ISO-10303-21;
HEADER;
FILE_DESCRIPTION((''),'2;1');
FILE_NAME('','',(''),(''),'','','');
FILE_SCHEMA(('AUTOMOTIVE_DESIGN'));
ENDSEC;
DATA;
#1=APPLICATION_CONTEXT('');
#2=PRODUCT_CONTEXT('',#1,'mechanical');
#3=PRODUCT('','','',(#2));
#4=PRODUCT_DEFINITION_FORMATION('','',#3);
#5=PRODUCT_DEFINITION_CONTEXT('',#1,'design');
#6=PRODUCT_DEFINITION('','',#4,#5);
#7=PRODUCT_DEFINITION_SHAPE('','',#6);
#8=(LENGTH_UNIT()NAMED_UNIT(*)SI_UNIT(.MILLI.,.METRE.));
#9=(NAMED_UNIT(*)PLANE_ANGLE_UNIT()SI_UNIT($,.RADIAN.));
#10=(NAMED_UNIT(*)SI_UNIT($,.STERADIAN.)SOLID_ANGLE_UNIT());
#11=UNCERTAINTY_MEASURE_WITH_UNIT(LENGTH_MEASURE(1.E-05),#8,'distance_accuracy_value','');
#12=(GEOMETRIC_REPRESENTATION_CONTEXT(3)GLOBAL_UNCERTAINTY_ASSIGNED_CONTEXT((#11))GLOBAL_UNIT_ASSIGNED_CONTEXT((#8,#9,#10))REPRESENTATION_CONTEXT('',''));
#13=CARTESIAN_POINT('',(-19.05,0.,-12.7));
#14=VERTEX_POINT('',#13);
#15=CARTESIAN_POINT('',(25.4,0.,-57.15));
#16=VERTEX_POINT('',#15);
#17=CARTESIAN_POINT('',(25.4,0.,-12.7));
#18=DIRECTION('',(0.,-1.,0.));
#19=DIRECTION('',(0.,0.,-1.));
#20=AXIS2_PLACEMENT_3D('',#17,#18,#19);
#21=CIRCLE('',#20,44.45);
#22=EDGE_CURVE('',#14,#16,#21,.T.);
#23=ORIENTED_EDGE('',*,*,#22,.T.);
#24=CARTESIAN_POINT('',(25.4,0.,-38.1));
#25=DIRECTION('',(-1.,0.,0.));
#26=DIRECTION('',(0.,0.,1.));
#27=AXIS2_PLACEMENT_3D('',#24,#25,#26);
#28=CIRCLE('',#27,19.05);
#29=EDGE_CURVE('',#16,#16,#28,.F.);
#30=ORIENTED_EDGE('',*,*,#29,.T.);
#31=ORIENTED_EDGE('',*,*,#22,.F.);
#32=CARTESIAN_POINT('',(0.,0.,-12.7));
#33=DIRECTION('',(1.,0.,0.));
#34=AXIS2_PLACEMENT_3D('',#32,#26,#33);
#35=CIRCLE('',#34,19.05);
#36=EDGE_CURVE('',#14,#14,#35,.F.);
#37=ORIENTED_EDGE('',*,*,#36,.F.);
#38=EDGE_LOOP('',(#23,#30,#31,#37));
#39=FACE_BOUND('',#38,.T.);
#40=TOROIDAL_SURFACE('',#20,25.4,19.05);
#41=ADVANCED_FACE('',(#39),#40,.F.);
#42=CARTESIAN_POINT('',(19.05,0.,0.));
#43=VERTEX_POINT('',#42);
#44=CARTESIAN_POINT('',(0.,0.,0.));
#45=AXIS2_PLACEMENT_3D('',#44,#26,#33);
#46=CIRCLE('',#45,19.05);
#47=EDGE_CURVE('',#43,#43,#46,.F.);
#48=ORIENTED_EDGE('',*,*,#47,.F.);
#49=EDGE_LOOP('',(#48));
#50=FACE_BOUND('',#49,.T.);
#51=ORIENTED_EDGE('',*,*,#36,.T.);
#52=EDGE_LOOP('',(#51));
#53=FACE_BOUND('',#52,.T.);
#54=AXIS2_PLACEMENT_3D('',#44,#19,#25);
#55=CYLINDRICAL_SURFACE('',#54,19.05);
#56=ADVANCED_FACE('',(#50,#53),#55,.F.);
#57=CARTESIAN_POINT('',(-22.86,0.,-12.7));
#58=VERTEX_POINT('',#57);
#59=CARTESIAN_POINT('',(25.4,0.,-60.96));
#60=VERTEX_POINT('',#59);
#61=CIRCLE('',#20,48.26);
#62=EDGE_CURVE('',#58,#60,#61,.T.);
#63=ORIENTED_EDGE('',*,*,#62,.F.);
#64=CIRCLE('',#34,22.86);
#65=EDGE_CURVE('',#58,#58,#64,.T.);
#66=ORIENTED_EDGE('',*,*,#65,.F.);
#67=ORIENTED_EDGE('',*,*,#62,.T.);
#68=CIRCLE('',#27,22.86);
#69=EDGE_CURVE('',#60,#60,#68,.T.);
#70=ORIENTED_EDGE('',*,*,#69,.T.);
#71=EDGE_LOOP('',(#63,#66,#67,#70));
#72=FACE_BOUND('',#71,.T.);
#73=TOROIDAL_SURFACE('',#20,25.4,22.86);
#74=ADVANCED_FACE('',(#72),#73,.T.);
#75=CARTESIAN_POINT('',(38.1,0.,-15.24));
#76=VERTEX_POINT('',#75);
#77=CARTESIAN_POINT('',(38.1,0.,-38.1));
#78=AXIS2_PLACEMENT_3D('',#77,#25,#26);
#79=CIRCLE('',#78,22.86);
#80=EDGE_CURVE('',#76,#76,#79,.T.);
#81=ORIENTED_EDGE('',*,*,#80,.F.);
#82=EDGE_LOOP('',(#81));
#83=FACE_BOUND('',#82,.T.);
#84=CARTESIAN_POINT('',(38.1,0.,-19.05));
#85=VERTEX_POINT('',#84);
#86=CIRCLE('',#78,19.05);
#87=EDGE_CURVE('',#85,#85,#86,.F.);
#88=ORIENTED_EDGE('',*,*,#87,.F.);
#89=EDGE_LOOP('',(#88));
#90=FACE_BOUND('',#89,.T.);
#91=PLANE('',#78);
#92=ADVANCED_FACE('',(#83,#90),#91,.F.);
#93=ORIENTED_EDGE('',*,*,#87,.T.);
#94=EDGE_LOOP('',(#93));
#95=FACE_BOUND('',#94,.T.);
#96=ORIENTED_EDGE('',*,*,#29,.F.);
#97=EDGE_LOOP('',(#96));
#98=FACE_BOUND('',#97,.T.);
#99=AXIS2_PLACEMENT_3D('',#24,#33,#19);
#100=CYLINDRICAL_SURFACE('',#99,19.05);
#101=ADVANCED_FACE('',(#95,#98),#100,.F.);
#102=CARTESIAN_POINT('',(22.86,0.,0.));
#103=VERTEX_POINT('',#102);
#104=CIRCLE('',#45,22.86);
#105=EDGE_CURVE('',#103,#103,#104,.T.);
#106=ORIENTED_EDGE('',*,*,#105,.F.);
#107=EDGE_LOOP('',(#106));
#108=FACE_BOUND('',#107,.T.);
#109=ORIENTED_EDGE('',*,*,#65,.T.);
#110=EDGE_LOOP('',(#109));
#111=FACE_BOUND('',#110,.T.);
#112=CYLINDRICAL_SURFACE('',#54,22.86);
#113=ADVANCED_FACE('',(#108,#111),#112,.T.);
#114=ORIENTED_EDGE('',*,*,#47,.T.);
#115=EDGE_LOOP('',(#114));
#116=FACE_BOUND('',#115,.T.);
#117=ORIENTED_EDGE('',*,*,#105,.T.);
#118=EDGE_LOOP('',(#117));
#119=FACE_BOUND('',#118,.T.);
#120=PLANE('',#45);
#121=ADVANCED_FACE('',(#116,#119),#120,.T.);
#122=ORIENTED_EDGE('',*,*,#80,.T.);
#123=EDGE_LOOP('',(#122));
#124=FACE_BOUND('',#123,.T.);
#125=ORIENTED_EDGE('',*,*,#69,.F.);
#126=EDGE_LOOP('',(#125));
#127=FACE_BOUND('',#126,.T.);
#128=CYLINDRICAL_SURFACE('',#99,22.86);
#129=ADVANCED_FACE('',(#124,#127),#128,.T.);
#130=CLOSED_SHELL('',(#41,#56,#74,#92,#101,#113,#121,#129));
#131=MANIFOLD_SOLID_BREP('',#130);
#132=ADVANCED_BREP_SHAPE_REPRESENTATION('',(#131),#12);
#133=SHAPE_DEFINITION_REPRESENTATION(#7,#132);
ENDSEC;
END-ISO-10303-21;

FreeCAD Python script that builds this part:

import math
import FreeCAD as App
import Part
import Sketcher
from FreeCAD import Vector
Q = App.Units.Quantity

doc = App.newDocument("Part")
body = doc.addObject("PartDesign::Body", "Body")

# Sketch on XY plane
sketch1 = doc.addObject("Sketcher::SketchObject", "Sketch")
body.addObject(sketch1)
sketch1.AttachmentSupport = (doc.XY_Plane, [""])
sketch1.MapMode = "FlatFace"
sketch1.addGeometry([
    Part.Circle(Vector(0, 0, 0), Vector(0, 0, 1), 23),
    Part.Circle(Vector(0, 0, 0), Vector(0, 0, 1), 19),
], False)
sketch1.addConstraint([
    Sketcher.Constraint("Coincident", 0, 3, -1, 1),
    Sketcher.Constraint("Coincident", 1, 3, -1, 1),
    Sketcher.Constraint("Diameter", 0, Q("1.8 in")),
    Sketcher.Constraint("Diameter", 1, Q("1.5 in")),
])

# Sketch on XZ plane
sketch2 = doc.addObject("Sketcher::SketchObject", "Sketch001")
body.addObject(sketch2)
sketch2.AttachmentSupport = (doc.XZ_Plane, [""])
sketch2.MapMode = "FlatFace"
sketch2.addGeometry([
    Part.LineSegment(Vector(0, 0, 0), Vector(0, -13, 0)),
    Part.ArcOfCircle(Part.Circle(Vector(25, -13, 0), Vector(0, 0, 1), 25), math.radians(180), math.radians(270)),
    Part.LineSegment(Vector(25, -38, 0), Vector(38, -38, 0)),
], False)
sketch2.addConstraint([
    Sketcher.Constraint("Tangent", 0, 2, 1, 1),
    Sketcher.Constraint("Tangent", 1, 2, 2, 1),
    Sketcher.Constraint("Vertical", 0),
    Sketcher.Constraint("Horizontal", 2),
    Sketcher.Constraint("Coincident", 0, 1, -1, 1),
    Sketcher.Constraint("Equal", 2, 0),
    Sketcher.Constraint("Radius", 1, Q("1 in")),
    Sketcher.Constraint("DistanceX", 2, 1, 2, 2, Q("0.5 in")),
])
doc.recompute()

additivepipe = doc.addObject("PartDesign::AdditivePipe", "AdditivePipe")
body.addObject(additivepipe)
additivepipe.Profile = sketch1
additivepipe.Spine = (sketch2, ["Edge1", "Edge2", "Edge3"])

doc.recompute()
